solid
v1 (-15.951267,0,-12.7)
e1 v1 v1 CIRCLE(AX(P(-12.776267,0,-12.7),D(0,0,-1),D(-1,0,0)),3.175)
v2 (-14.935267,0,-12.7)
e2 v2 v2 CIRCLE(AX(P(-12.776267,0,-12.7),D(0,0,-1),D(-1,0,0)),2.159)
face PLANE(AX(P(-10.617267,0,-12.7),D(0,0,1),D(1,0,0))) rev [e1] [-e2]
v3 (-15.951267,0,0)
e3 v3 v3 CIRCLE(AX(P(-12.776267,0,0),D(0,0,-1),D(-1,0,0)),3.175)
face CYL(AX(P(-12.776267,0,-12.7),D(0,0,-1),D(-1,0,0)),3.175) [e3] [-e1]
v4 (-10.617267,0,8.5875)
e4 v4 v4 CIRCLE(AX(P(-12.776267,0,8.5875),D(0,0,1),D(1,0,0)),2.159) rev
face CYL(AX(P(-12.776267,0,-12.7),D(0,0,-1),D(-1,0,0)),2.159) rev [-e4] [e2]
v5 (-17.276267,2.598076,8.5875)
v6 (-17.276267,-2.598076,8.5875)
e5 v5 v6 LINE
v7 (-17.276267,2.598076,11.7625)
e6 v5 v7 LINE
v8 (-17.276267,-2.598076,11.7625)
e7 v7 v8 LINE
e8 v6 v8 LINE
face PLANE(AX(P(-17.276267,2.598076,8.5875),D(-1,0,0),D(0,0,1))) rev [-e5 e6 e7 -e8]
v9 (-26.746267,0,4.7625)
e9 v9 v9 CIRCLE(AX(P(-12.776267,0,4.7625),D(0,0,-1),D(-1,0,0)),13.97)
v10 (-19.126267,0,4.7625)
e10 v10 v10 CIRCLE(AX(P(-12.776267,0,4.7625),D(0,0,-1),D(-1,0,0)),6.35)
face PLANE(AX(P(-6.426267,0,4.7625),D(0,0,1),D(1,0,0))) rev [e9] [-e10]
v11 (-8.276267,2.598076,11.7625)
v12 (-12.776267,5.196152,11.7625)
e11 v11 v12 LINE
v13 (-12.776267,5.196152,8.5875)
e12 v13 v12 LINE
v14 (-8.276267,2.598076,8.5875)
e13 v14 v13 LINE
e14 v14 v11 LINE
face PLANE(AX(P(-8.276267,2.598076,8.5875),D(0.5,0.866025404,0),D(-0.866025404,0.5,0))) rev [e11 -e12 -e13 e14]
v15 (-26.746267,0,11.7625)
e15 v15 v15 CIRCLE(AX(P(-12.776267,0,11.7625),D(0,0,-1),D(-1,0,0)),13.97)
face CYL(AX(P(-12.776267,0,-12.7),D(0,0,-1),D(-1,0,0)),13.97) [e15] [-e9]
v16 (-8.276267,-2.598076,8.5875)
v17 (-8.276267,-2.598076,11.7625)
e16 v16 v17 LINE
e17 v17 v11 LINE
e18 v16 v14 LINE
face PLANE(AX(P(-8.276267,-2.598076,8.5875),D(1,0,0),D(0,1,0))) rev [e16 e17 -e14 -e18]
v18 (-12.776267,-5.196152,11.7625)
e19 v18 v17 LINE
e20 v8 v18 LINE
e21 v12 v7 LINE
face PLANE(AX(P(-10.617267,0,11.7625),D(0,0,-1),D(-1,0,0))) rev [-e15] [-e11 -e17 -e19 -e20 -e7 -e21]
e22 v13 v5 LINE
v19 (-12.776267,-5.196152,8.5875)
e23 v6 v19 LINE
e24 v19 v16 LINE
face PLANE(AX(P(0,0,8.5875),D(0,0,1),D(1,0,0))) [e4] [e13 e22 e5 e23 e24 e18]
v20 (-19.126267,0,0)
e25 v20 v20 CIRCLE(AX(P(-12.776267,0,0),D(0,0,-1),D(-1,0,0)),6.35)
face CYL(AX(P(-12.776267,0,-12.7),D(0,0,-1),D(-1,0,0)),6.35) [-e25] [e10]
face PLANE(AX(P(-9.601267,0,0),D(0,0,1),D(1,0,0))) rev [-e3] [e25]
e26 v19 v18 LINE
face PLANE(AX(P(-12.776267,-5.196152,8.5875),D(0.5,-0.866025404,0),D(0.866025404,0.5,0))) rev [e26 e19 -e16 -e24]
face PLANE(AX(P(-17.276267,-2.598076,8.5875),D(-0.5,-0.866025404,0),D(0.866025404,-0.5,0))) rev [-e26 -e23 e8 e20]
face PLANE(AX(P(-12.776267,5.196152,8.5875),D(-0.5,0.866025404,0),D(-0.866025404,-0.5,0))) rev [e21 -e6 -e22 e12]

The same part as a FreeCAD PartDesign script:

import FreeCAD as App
import Part
import Sketcher
from FreeCAD import Vector
Q = App.Units.Quantity

doc = App.newDocument("Part")
body = doc.addObject("PartDesign::Body", "Body")

# Sketch on XZ plane
sketch1 = doc.addObject("Sketcher::SketchObject", "Sketch")
body.addObject(sketch1)
sketch1.AttachmentSupport = (doc.XZ_Plane, [""])
sketch1.MapMode = "FlatFace"
sketch1.addGeometry([
    Part.LineSegment(Vector(-9.6, -12.7, 0), Vector(-10.6, -12.7, 0)),  # 0
    Part.LineSegment(Vector(-10.6, -12.7, 0), Vector(-10.6, 11.8, 0)),  # 1
    Part.LineSegment(Vector(-10.6, 11.8, 0), Vector(1.2, 11.8, 0)),  # 2
    Part.LineSegment(Vector(1.2, 11.8, 0), Vector(1.2, 4.8, 0)),  # 3
    Part.LineSegment(Vector(1.2, 4.8, 0), Vector(-6.4, 4.8, 0)),  # 4
    Part.LineSegment(Vector(-6.4, 4.8, 0), Vector(-6.4, 0, 0)),  # 5
    Part.LineSegment(Vector(-6.4, 0, 0), Vector(-9.6, 0, 0)),  # 6
    Part.LineSegment(Vector(-9.6, 0, 0), Vector(-9.6, -12.7, 0)),  # 7
], False)
sketch1.addGeometry(Part.LineSegment(Vector(-12.8, -12.7, 0), Vector(-12.8, 11.8, 0)), True)  # axis
sketch1.addConstraint([
    Sketcher.Constraint("Coincident", 0, 2, 1, 1),
    Sketcher.Constraint("Coincident", 1, 2, 2, 1),
    Sketcher.Constraint("Coincident", 2, 2, 3, 1),
    Sketcher.Constraint("Coincident", 3, 2, 4, 1),
    Sketcher.Constraint("Coincident", 4, 2, 5, 1),
    Sketcher.Constraint("Coincident", 5, 2, 6, 1),
    Sketcher.Constraint("Coincident", 6, 2, 7, 1),
    Sketcher.Constraint("Coincident", 7, 2, 0, 1),
    Sketcher.Constraint("Horizontal", 0),
    Sketcher.Constraint("Vertical", 1),
    Sketcher.Constraint("Horizontal", 2),
    Sketcher.Constraint("Vertical", 3),
    Sketcher.Constraint("Horizontal", 4),
    Sketcher.Constraint("Vertical", 5),
    Sketcher.Constraint("Horizontal", 6),
    Sketcher.Constraint("Vertical", 7),
    Sketcher.Constraint("Vertical", 8),
    Sketcher.Constraint("PointOnObject", 5, 2, -1),
    Sketcher.Constraint("Horizontal", 7, 2, 8, 1),
    Sketcher.Constraint("Horizontal", 2, 2, 8, 2),
    Sketcher.Constraint("DistanceX", 4, 2, 4, 1, Q("0.3 in")),
    Sketcher.Constraint("DistanceY", 7, 2, 7, 1, Q("0.5 in")),
    Sketcher.Constraint("DistanceX", 0, 2, 0, 1, Q("0.04 in")),
    Sketcher.Constraint("DistanceX", 2, 1, 2, 2, Q("0.465 in")),
    Sketcher.Constraint("DistanceY", 5, 2, 5, 1, Q("0.1875 in")),
    Sketcher.Constraint("DistanceX", 8, 1, 5, 2, Q("0.25 in")),
    Sketcher.Constraint("DistanceY", 1, 1, 1, 2, Q("24.4625 mm")),
    Sketcher.Constraint("DistanceX", 0, 2, -1, 1, Q("10.617267 mm")),
])
revolution = doc.addObject("PartDesign::Revolution", "Revolution")
body.addObject(revolution)
revolution.Profile = sketch1
revolution.ReferenceAxis = (sketch1, ["Axis0"])
revolution.Angle = 360

# Sketch on XY plane
sketch2 = doc.addObject("Sketcher::SketchObject", "Sketch001")
body.addObject(sketch2)
sketch2.AttachmentSupport = (doc.XY_Plane, [""])
sketch2.MapMode = "FlatFace"
sketch2.AttachmentOffset = App.Placement(Vector(0, 0, 11.7625), App.Rotation())
sketch2.addGeometry([
    Part.LineSegment(Vector(-13, -5, 0), Vector(-8, -3, 0)),  # 0
    Part.LineSegment(Vector(-8, -3, 0), Vector(-8, 3, 0)),  # 1
    Part.LineSegment(Vector(-8, 3, 0), Vector(-13, 5, 0)),  # 2
    Part.LineSegment(Vector(-13, 5, 0), Vector(-17, 3, 0)),  # 3
    Part.LineSegment(Vector(-17, 3, 0), Vector(-17, -3, 0)),  # 4
    Part.LineSegment(Vector(-17, -3, 0), Vector(-13, -5, 0)),  # 5
], False)
sketch2.addConstraint([
    Sketcher.Constraint("Coincident", 0, 2, 1, 1),
    Sketcher.Constraint("Coincident", 1, 2, 2, 1),
    Sketcher.Constraint("Coincident", 2, 2, 3, 1),
    Sketcher.Constraint("Coincident", 3, 2, 4, 1),
    Sketcher.Constraint("Coincident", 4, 2, 5, 1),
    Sketcher.Constraint("Coincident", 5, 2, 0, 1),
    Sketcher.Constraint("Vertical", 1),
    Sketcher.Constraint("Vertical", 4),
    Sketcher.Constraint("Symmetric", 2, 2, 5, 2, -1),
    Sketcher.Constraint("Parallel", 0, 3),
    Sketcher.Constraint("Parallel", 2, 5),
    Sketcher.Constraint("Horizontal", 1, 2, 3, 2),
    Sketcher.Constraint("Horizontal", 0, 2, 4, 2),
    Sketcher.Constraint("Angle", 0, Q("30 deg")),
    Sketcher.Constraint("DistanceX", 2, 2, 1, 2, Q("4.5 mm")),
    Sketcher.Constraint("DistanceY", 1, 1, 1, 2, Q("5.196152 mm")),
    Sketcher.Constraint("DistanceX", 0, 2, -1, 1, Q("8.276267 mm")),
])
pocket1 = doc.addObject("PartDesign::Pocket", "Pocket")
body.addObject(pocket1)
pocket1.Profile = sketch2
pocket1.Length = Q("0.125 in")

doc.recompute()
